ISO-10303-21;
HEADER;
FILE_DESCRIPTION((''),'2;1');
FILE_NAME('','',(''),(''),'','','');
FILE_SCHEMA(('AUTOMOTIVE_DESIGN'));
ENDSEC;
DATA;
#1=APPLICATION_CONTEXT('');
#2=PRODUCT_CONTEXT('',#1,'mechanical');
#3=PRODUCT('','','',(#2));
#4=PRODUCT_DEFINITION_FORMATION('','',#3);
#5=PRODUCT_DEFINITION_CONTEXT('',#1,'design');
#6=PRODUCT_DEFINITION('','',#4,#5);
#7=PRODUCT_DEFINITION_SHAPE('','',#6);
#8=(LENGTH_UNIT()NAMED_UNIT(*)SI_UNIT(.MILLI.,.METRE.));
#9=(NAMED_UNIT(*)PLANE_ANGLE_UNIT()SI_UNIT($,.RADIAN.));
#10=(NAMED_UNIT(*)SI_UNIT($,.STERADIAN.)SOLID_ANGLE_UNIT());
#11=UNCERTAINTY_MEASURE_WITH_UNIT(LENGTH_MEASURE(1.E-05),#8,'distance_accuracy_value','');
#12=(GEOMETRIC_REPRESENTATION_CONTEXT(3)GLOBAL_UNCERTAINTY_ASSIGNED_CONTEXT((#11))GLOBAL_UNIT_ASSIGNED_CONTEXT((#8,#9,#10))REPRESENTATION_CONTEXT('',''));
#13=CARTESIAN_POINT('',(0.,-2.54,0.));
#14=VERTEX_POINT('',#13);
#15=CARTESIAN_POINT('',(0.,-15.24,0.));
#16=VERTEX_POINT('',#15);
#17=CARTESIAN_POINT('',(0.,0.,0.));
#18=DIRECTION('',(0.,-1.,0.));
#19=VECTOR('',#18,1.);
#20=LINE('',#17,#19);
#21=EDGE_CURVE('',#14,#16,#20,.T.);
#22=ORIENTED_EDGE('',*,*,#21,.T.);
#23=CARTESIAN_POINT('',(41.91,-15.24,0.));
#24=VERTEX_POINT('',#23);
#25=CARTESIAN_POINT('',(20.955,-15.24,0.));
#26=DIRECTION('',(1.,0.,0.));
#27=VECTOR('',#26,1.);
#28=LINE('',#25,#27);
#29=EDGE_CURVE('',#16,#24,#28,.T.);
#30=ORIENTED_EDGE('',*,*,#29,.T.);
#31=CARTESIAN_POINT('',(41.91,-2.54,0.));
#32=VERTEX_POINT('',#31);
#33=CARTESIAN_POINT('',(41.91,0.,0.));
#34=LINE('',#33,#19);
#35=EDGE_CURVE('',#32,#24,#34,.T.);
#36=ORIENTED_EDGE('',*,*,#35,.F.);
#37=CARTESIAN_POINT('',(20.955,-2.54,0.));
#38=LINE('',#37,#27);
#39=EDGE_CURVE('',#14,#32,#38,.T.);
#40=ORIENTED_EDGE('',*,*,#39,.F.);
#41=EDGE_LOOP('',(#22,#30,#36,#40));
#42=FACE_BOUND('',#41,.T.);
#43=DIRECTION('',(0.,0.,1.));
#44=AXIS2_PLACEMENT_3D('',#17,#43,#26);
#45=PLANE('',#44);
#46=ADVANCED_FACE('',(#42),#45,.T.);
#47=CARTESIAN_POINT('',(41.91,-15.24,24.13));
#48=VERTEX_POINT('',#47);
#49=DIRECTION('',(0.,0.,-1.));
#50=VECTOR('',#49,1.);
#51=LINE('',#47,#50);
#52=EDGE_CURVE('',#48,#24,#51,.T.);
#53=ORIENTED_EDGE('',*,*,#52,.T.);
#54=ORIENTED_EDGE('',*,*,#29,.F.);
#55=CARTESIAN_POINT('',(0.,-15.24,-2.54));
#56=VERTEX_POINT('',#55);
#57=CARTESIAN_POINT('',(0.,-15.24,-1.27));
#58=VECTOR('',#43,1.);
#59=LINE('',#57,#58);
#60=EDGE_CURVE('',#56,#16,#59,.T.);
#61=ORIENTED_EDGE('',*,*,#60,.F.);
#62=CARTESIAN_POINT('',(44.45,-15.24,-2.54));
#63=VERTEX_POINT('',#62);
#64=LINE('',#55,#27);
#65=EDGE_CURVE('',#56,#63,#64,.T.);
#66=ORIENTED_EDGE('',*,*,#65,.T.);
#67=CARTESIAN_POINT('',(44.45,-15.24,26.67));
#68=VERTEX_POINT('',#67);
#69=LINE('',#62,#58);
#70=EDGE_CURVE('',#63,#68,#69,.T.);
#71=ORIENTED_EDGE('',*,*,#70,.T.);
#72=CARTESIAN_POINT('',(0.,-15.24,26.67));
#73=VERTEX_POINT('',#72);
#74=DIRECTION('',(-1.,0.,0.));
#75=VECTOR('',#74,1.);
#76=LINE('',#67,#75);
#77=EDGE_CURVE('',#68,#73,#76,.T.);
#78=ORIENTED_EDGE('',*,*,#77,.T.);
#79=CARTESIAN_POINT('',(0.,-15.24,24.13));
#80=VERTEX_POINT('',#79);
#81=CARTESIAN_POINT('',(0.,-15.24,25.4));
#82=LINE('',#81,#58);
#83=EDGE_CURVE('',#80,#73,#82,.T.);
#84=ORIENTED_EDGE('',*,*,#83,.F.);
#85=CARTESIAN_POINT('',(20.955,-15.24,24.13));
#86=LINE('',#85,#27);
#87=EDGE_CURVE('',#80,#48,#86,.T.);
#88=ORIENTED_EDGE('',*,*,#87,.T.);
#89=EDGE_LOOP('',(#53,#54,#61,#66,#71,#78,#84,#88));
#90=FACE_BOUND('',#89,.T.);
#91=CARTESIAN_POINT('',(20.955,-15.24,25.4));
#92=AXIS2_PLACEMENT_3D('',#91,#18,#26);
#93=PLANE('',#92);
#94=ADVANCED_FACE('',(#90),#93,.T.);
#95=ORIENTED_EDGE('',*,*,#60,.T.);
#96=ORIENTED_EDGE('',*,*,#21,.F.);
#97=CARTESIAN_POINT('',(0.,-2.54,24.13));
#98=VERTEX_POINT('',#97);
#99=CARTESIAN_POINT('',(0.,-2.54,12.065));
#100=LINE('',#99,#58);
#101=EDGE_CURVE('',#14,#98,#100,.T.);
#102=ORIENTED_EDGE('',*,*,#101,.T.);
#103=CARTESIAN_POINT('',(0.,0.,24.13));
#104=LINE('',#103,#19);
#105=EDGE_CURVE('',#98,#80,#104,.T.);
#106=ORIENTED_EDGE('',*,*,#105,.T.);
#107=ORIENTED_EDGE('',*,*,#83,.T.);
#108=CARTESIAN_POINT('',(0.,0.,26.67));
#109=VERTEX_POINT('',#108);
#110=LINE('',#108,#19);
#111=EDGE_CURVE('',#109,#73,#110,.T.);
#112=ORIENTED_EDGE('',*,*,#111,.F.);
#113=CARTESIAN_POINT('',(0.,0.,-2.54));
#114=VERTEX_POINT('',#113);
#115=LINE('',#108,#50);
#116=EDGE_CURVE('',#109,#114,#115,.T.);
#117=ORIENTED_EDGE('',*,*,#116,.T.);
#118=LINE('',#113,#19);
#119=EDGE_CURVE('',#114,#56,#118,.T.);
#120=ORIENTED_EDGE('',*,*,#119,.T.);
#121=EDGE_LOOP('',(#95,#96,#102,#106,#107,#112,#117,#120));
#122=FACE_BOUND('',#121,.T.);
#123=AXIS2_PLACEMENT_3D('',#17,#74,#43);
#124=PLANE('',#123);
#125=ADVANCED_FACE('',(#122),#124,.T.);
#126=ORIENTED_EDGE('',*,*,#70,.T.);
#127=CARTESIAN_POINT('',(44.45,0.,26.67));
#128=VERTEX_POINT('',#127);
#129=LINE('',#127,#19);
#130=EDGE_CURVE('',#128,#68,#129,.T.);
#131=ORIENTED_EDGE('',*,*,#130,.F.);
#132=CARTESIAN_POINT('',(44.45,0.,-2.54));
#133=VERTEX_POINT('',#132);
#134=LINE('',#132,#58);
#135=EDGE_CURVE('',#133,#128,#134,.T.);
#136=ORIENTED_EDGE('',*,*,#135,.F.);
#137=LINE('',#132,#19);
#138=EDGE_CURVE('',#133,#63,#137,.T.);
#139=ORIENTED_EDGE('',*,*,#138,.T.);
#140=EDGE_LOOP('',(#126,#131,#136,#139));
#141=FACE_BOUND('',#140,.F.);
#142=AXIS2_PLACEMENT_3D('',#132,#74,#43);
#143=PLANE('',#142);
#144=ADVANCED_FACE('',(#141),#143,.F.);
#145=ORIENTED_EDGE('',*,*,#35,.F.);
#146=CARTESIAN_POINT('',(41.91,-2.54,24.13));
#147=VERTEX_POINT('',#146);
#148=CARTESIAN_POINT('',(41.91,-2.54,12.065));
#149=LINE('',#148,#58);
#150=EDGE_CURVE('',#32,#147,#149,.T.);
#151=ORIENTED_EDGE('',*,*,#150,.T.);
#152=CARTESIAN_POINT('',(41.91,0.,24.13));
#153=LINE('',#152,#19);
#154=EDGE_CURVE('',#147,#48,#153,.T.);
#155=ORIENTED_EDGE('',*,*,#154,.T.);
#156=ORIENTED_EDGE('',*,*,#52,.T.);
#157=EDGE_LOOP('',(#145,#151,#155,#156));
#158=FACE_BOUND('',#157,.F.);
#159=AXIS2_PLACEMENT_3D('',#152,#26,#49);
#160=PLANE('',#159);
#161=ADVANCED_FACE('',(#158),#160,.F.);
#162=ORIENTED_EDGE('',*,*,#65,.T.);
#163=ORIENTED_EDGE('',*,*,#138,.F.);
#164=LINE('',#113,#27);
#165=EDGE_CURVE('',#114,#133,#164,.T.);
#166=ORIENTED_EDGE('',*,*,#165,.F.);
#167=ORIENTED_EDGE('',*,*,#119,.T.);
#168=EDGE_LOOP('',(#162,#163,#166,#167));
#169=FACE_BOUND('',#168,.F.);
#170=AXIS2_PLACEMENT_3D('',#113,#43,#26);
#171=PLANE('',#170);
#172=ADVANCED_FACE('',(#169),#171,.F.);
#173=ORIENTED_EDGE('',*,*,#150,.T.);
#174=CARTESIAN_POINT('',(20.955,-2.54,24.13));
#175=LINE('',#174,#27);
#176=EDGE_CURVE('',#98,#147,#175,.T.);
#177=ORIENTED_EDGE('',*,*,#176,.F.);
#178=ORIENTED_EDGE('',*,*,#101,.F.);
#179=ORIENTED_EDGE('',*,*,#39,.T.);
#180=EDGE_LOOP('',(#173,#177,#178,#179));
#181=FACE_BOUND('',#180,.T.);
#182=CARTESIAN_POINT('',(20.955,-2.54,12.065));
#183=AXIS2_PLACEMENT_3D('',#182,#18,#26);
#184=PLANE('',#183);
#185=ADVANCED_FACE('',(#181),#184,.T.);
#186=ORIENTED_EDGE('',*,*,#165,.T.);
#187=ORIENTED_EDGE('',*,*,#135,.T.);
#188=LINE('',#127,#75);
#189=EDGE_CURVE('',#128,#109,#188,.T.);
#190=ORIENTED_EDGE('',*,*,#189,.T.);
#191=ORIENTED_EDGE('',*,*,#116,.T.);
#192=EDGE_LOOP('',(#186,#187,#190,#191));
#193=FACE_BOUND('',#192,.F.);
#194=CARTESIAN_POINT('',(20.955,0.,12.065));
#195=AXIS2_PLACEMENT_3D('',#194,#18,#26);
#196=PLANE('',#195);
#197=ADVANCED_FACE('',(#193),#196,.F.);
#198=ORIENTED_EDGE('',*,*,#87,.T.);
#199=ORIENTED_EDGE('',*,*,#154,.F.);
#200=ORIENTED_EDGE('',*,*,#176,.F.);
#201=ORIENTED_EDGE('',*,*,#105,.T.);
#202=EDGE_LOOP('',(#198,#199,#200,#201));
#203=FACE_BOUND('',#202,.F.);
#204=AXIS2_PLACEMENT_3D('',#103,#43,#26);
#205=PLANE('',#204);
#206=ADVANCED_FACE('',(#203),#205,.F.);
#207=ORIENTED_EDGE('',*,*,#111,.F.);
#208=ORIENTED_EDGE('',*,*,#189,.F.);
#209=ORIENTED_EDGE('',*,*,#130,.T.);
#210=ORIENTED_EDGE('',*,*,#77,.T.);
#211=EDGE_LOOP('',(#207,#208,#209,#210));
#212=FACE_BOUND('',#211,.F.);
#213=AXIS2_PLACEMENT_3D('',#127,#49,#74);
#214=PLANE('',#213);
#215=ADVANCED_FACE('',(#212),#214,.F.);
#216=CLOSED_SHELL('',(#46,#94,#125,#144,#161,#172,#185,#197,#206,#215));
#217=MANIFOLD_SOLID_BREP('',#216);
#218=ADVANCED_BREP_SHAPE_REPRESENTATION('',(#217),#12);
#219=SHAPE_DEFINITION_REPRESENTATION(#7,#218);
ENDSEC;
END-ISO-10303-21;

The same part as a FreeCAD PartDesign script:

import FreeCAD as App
import Part
import Sketcher
Q = App.Units.Quantity

doc = App.newDocument("Part")
body = doc.addObject("PartDesign::Body", "Body")

# Sketch on XZ plane
sketch1 = body.newObject("Sketcher::SketchObject", "Sketch")
sketch1.AttachmentSupport = (doc.getObject("XZ_Plane"), [""])
sketch1.MapMode = "FlatFace"
sketch1.addGeometry(Part.LineSegment(App.Vector(0, 26.7, 0), App.Vector(0, 24.1, 0)), False)
sketch1.addGeometry(Part.LineSegment(App.Vector(0, 24.1, 0), App.Vector(41.9, 24.1, 0)), False)
sketch1.addGeometry(Part.LineSegment(App.Vector(41.9, 24.1, 0), App.Vector(41.9, 0, 0)), False)
sketch1.addGeometry(Part.LineSegment(App.Vector(41.9, 0, 0), App.Vector(0, 0, 0)), False)
sketch1.addGeometry(Part.LineSegment(App.Vector(0, 0, 0), App.Vector(0, -2.5, 0)), False)
sketch1.addGeometry(Part.LineSegment(App.Vector(0, -2.5, 0), App.Vector(44.5, -2.5, 0)), False)
sketch1.addGeometry(Part.LineSegment(App.Vector(44.5, -2.5, 0), App.Vector(44.5, 26.7, 0)), False)
sketch1.addGeometry(Part.LineSegment(App.Vector(44.5, 26.7, 0), App.Vector(0, 26.7, 0)), False)
sketch1.addConstraint(Sketcher.Constraint("Coincident", 0, 2, 1, 1))
sketch1.addConstraint(Sketcher.Constraint("Coincident", 1, 2, 2, 1))
sketch1.addConstraint(Sketcher.Constraint("Coincident", 2, 2, 3, 1))
sketch1.addConstraint(Sketcher.Constraint("Coincident", 3, 2, 4, 1))
sketch1.addConstraint(Sketcher.Constraint("Coincident", 4, 2, 5, 1))
sketch1.addConstraint(Sketcher.Constraint("Coincident", 5, 2, 6, 1))
sketch1.addConstraint(Sketcher.Constraint("Coincident", 6, 2, 7, 1))
sketch1.addConstraint(Sketcher.Constraint("Coincident", 7, 2, 0, 1))
sketch1.addConstraint(Sketcher.Constraint("Vertical", 0))
sketch1.addConstraint(Sketcher.Constraint("Horizontal", 1))
sketch1.addConstraint(Sketcher.Constraint("Vertical", 2))
sketch1.addConstraint(Sketcher.Constraint("Horizontal", 3))
sketch1.addConstraint(Sketcher.Constraint("Vertical", 4))
sketch1.addConstraint(Sketcher.Constraint("Horizontal", 5))
sketch1.addConstraint(Sketcher.Constraint("Vertical", 6))
sketch1.addConstraint(Sketcher.Constraint("Horizontal", 7))
sketch1.addConstraint(Sketcher.Constraint("Coincident", 3, 2, -1, 1))
sketch1.addConstraint(Sketcher.Constraint("PointOnObject", 0, 2, -2))
sketch1.addConstraint(Sketcher.Constraint("Equal", 0, 4))
sketch1.addConstraint(Sketcher.Constraint("DistanceY", 0, 2, 0, 1, Q("0.1 in")))
sketch1.addConstraint(Sketcher.Constraint("DistanceX", 1, 1, 1, 2, Q("1.65 in")))
sketch1.addConstraint(Sketcher.Constraint("DistanceX", 5, 1, 5, 2, Q("1.75 in")))
sketch1.addConstraint(Sketcher.Constraint("DistanceY", 2, 2, 2, 1, Q("0.95 in")))
pad1 = body.newObject("PartDesign::Pad", "Pad")
pad1.Profile = sketch1
pad1.Length = Q("0.6 in")

# Sketch on XZ plane
sketch2 = body.newObject("Sketcher::SketchObject", "Sketch001")
sketch2.AttachmentSupport = (doc.getObject("XZ_Plane"), [""])
sketch2.MapMode = "FlatFace"
sketch2.addGeometry(Part.LineSegment(App.Vector(0, 24, 0), App.Vector(0, 0, 0)), False)
sketch2.addGeometry(Part.LineSegment(App.Vector(0, 0, 0), App.Vector(42, 0, 0)), False)
sketch2.addGeometry(Part.LineSegment(App.Vector(42, 0, 0), App.Vector(42, 24, 0)), False)
sketch2.addGeometry(Part.LineSegment(App.Vector(42, 24, 0), App.Vector(0, 24, 0)), False)
sketch2.addConstraint(Sketcher.Constraint("Coincident", 0, 2, 1, 1))
sketch2.addConstraint(Sketcher.Constraint("Coincident", 1, 2, 2, 1))
sketch2.addConstraint(Sketcher.Constraint("Coincident", 2, 2, 3, 1))
sketch2.addConstraint(Sketcher.Constraint("Coincident", 3, 2, 0, 1))
sketch2.addConstraint(Sketcher.Constraint("Vertical", 0))
sketch2.addConstraint(Sketcher.Constraint("Horizontal", 1))
sketch2.addConstraint(Sketcher.Constraint("Vertical", 2))
sketch2.addConstraint(Sketcher.Constraint("Horizontal", 3))
sketch2.addConstraint(Sketcher.Constraint("Coincident", 0, 2, -1, 1))
sketch2.addConstraint(Sketcher.Constraint("DistanceX", 1, 1, 1, 2, Q("1.65 in")))
sketch2.addConstraint(Sketcher.Constraint("DistanceY", 0, 2, 0, 1, Q("0.95 in")))
pad2 = body.newObject("PartDesign::Pad", "Pad001")
pad2.Profile = sketch2
pad2.Length = Q("0.1 in")

doc.recompute()
